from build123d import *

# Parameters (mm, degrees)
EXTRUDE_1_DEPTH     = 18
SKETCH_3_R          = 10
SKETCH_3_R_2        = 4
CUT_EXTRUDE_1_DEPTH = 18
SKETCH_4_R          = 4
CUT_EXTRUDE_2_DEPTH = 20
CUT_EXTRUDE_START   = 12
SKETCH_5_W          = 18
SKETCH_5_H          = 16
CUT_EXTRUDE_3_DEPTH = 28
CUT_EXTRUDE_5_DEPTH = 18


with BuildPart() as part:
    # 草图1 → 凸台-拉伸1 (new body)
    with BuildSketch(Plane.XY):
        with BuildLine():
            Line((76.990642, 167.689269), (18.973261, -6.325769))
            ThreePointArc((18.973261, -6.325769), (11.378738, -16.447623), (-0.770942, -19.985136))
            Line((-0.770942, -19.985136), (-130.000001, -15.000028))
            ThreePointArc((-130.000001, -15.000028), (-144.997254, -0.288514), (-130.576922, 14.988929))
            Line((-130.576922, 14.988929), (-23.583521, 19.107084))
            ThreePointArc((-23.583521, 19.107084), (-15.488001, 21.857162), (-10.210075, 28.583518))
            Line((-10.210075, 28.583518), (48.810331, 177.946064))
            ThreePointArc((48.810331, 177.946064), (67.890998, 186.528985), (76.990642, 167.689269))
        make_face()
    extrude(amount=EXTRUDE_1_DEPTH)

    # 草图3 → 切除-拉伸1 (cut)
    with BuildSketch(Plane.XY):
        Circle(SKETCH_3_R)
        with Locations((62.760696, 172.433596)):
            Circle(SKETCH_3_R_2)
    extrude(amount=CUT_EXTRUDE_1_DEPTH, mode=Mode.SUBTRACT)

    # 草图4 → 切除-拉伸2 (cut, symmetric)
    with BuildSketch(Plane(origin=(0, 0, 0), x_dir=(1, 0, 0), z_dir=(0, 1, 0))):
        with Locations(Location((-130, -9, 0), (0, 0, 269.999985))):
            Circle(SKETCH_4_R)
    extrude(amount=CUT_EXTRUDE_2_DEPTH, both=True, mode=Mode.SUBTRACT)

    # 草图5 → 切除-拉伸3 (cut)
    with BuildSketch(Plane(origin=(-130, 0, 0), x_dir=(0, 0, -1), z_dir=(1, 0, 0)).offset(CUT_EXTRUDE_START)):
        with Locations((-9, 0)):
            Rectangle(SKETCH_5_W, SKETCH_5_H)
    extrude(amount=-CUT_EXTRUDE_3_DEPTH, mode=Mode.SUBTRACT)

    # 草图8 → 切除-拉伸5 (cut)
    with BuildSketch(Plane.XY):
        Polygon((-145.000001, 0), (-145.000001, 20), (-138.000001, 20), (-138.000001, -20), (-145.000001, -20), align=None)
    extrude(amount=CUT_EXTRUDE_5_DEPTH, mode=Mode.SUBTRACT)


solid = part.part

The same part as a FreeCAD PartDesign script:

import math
import FreeCAD as App
import Part
import Sketcher

V = App.Vector

doc = App.newDocument("Part")
params = doc.addObject("Spreadsheet::Sheet", "Params")
for row, (alias, value) in enumerate([
    ("sketch1_radius", "15 mm"),
    ("sketch1_radius2", "14.999999 mm"),
    ("sketch1_radius3", "20.000002 mm"),
    ("pad1_length", "18 mm"),
    ("sketch2_diameter", "20 mm"),
    ("sketch2_diameter2", "8 mm"),
    ("pocket1_length", "18 mm"),
    ("sketch3_diameter", "8 mm"),
    ("pocket2_length", "40 mm"),
    ("sketch4_width", "16 mm"),
    ("sketch4_height", "18 mm"),
    ("pocket3_length", "28 mm"),
    ("sketch5_width", "7 mm"),
    ("sketch5_height", "40 mm"),
    ("pocket4_length", "18 mm"),
], start=1):
    params.set(f"A{row}", alias)
    params.set(f"B{row}", "=" + value)
    params.setAlias(f"B{row}", alias)

body = doc.addObject("PartDesign::Body", "Body")

sketch1 = body.newObject("Sketcher::SketchObject", "Sketch")
sketch1.AttachmentSupport = (doc.getObject("XY_Plane"), [""])
sketch1.MapMode = "FlatFace"
sketch1.addGeometry(Part.LineSegment(V(18.973261, -6.325769, 0), V(76.990642, 167.689269, 0)), False)
sketch1.addGeometry(Part.ArcOfCircle(Part.Circle(V(62.760696, 172.433596, 0), V(0, 0, 1), 15), math.radians(-18.438614), math.radians(158.438612)), False)
sketch1.addGeometry(Part.LineSegment(V(48.810331, 177.946064, 0), V(-10.210075, 28.583518, 0)), False)
sketch1.addGeometry(Part.ArcOfCircle(Part.Circle(V(-24.16044, 34.095984, 0), V(0, 0, 1), 14.999999), math.radians(-87.795789), math.radians(-21.561381)), False)
sketch1.addGeometry(Part.LineSegment(V(-23.583521, 19.107084, 0), V(-130.576922, 14.988929, 0)), False)
sketch1.addGeometry(Part.ArcOfCircle(Part.Circle(V(-130.000001, 0, 0), V(0, 0, 1), 15.000028), math.radians(92.204215), math.radians(270)), False)
sketch1.addGeometry(Part.LineSegment(V(-130.000001, -15.000028, 0), V(-0.770942, -19.985136, 0)), False)
sketch1.addGeometry(Part.ArcOfCircle(Part.Circle(V(-0.000002, 0.000002, 0), V(0, 0, 1), 20.000002), math.radians(-92.209128), math.radians(-18.438617)), False)
sketch1.addConstraint(Sketcher.Constraint("Coincident", 0, 2, 1, 1))
sketch1.addConstraint(Sketcher.Constraint("Coincident", 1, 2, 2, 1))
sketch1.addConstraint(Sketcher.Constraint("Coincident", 2, 2, 3, 2))
sketch1.addConstraint(Sketcher.Constraint("Coincident", 3, 1, 4, 1))
sketch1.addConstraint(Sketcher.Constraint("Coincident", 4, 2, 5, 1))
sketch1.addConstraint(Sketcher.Constraint("Coincident", 5, 2, 6, 1))
sketch1.addConstraint(Sketcher.Constraint("Coincident", 6, 2, 7, 1))
sketch1.addConstraint(Sketcher.Constraint("Coincident", 7, 2, 0, 1))
sketch1.addConstraint(Sketcher.Constraint("Coincident", 7, 3, -1, 1))
sketch1.addConstraint(Sketcher.Constraint("PointOnObject", 5, 3, -1))
sketch1.addConstraint(Sketcher.Constraint("Radius", 1, 15.0))
sketch1.addConstraint(Sketcher.Constraint("Radius", 3, 14.999999))
sketch1.addConstraint(Sketcher.Constraint("Radius", 7, 20.000002))
sketch1.addConstraint(Sketcher.Constraint("DistanceX", 5, 3, -1, 1, 130.000001))
sketch1.addConstraint(Sketcher.Constraint("DistanceX", 5, 2, -1, 1, 130.000001))
sketch1.addConstraint(Sketcher.Constraint("Radius", 5, 15.000028))
sketch1.addConstraint(Sketcher.Constraint("DistanceY", 3, 1, 3, 3, 14.9889))
sketch1.addConstraint(Sketcher.Constraint("DistanceX", 4, 2, 3, 1, 106.993401))
sketch1.addConstraint(Sketcher.Constraint("DistanceX", 3, 3, 7, 2, 43.133701))
sketch1.addConstraint(Sketcher.Constraint("Distance", 2, 160.60068))
sketch1.addConstraint(Sketcher.Constraint("DistanceX", 3, 3, -1, 1, 24.16044))
sketch1.addConstraint(Sketcher.Constraint("DistanceX", -1, 1, 0, 2, 76.990642))
sketch1.addConstraint(Sketcher.Constraint("DistanceY", -1, 1, 0, 2, 167.689269))
sketch1.addConstraint(Sketcher.Constraint("DistanceX", -1, 1, 1, 2, 48.810331))
sketch1.addConstraint(Sketcher.Constraint("DistanceY", -1, 1, 2, 2, 28.583518))
sketch1.addConstraint(Sketcher.Constraint("DistanceY", 3, 3, 1, 3, 138.337612))
sketch1.addConstraint(Sketcher.Constraint("DistanceX", 6, 2, 7, 3, 0.77094))
sketch1.setExpression("Constraints[10]", "Params.sketch1_radius")
sketch1.setExpression("Constraints[11]", "Params.sketch1_radius2")
sketch1.setExpression("Constraints[12]", "Params.sketch1_radius3")
pad1 = body.newObject("PartDesign::Pad", "Pad")
pad1.Profile = sketch1
pad1.setExpression("Length", "Params.pad1_length")

sketch2 = body.newObject("Sketcher::SketchObject", "Sketch001")
sketch2.AttachmentSupport = (doc.getObject("XY_Plane"), [""])
sketch2.MapMode = "FlatFace"
sketch2.addGeometry(Part.Circle(V(0, 0, 0), V(0, 0, 1), 10), False)
sketch2.addGeometry(Part.Circle(V(62.8, 172.4, 0), V(0, 0, 1), 4), False)
sketch2.addConstraint(Sketcher.Constraint("Coincident", 0, 3, -1, 1))
sketch2.addConstraint(Sketcher.Constraint("Diameter", 0, 20.0))
sketch2.addConstraint(Sketcher.Constraint("Diameter", 1, 8.0))
sketch2.addConstraint(Sketcher.Constraint("DistanceX", -1, 1, 1, 3, 62.760696))
sketch2.addConstraint(Sketcher.Constraint("DistanceY", -1, 1, 1, 3, 172.433596))
sketch2.setExpression("Constraints[1]", "Params.sketch2_diameter")
sketch2.setExpression("Constraints[2]", "Params.sketch2_diameter2")
pocket1 = body.newObject("PartDesign::Pocket", "Pocket")
pocket1.Profile = sketch2
pocket1.setExpression("Length", "Params.pocket1_length")
pocket1.Reversed = True

sketch3 = body.newObject("Sketcher::SketchObject", "Sketch002")
sketch3.AttachmentSupport = (doc.getObject("XZ_Plane"), [""])
sketch3.MapMode = "FlatFace"
sketch3.addGeometry(Part.Circle(V(-130, 9, 0), V(0, 0, 1), 4), False)
sketch3.addConstraint(Sketcher.Constraint("Diameter", 0, 8.0))
sketch3.addConstraint(Sketcher.Constraint("DistanceX", 0, 3, -1, 1, 130.0))
sketch3.addConstraint(Sketcher.Constraint("DistanceY", -1, 1, 0, 3, 9.0))
sketch3.setExpression("Constraints[0]", "Params.sketch3_diameter")
pocket2 = body.newObject("PartDesign::Pocket", "Pocket001")
pocket2.Profile = sketch3
pocket2.setExpression("Length", "Params.pocket2_length")
pocket2.Midplane = True

sketch4 = body.newObject("Sketcher::SketchObject", "Sketch003")
sketch4.AttachmentSupport = (doc.getObject("YZ_Plane"), [""])
sketch4.MapMode = "FlatFace"
sketch4.AttachmentOffset = App.Placement(V(0, 0, -118), App.Rotation())
sketch4.addGeometry(Part.LineSegment(V(8, 18, 0), V(-8, 18, 0)), False)
sketch4.addGeometry(Part.LineSegment(V(-8, 18, 0), V(-8, 0, 0)), False)
sketch4.addGeometry(Part.LineSegment(V(-8, 0, 0), V(8, 0, 0)), False)
sketch4.addGeometry(Part.LineSegment(V(8, 0, 0), V(8, 18, 0)), False)
sketch4.addConstraint(Sketcher.Constraint("Coincident", 0, 2, 1, 1))
sketch4.addConstraint(Sketcher.Constraint("Coincident", 1, 2, 2, 1))
sketch4.addConstraint(Sketcher.Constraint("Coincident", 2, 2, 3, 1))
sketch4.addConstraint(Sketcher.Constraint("Coincident", 3, 2, 0, 1))
sketch4.addConstraint(Sketcher.Constraint("Horizontal", 0))
sketch4.addConstraint(Sketcher.Constraint("Vertical", 1))
sketch4.addConstraint(Sketcher.Constraint("Horizontal", 2))
sketch4.addConstraint(Sketcher.Constraint("Vertical", 3))
sketch4.addConstraint(Sketcher.Constraint("Symmetric", 1, 2, 2, 2, -1, 1))
sketch4.addConstraint(Sketcher.Constraint("DistanceX", 0, 2, 0, 1, 16.0))
sketch4.addConstraint(Sketcher.Constraint("DistanceY", 1, 2, 1, 1, 18.0))
sketch4.setExpression("Constraints[9]", "Params.sketch4_width")
sketch4.setExpression("Constraints[10]", "Params.sketch4_height")
pocket3 = body.newObject("PartDesign::Pocket", "Pocket002")
pocket3.Profile = sketch4
pocket3.setExpression("Length", "Params.pocket3_length")

sketch5 = body.newObject("Sketcher::SketchObject", "Sketch004")
sketch5.AttachmentSupport = (doc.getObject("XY_Plane"), [""])
sketch5.MapMode = "FlatFace"
sketch5.addGeometry(Part.LineSegment(V(-145, 20, 0), V(-145, -20, 0)), False)
sketch5.addGeometry(Part.LineSegment(V(-145, -20, 0), V(-138, -20, 0)), False)
sketch5.addGeometry(Part.LineSegment(V(-138, -20, 0), V(-138, 20, 0)), False)
sketch5.addGeometry(Part.LineSegment(V(-138, 20, 0), V(-145, 20, 0)), False)
sketch5.addConstraint(Sketcher.Constraint("Coincident", 0, 2, 1, 1))
sketch5.addConstraint(Sketcher.Constraint("Coincident", 1, 2, 2, 1))
sketch5.addConstraint(Sketcher.Constraint("Coincident", 2, 2, 3, 1))
sketch5.addConstraint(Sketcher.Constraint("Coincident", 3, 2, 0, 1))
sketch5.addConstraint(Sketcher.Constraint("Vertical", 0))
sketch5.addConstraint(Sketcher.Constraint("Horizontal", 1))
sketch5.addConstraint(Sketcher.Constraint("Vertical", 2))
sketch5.addConstraint(Sketcher.Constraint("Horizontal", 3))
sketch5.addConstraint(Sketcher.Constraint("DistanceX", 1, 1, 1, 2, 7.0))
sketch5.addConstraint(Sketcher.Constraint("DistanceY", 0, 2, 0, 1, 40.0))
sketch5.addConstraint(Sketcher.Constraint("DistanceX", 0, 2, -1, 1, 145.000001))
sketch5.addConstraint(Sketcher.Constraint("DistanceY", 0, 2, -1, 1, 20.0))
sketch5.setExpression("Constraints[8]", "Params.sketch5_width")
sketch5.setExpression("Constraints[9]", "Params.sketch5_height")
pocket4 = body.newObject("PartDesign::Pocket", "Pocket003")
pocket4.Profile = sketch5
pocket4.setExpression("Length", "Params.pocket4_length")
pocket4.Reversed = True

doc.recompute()
